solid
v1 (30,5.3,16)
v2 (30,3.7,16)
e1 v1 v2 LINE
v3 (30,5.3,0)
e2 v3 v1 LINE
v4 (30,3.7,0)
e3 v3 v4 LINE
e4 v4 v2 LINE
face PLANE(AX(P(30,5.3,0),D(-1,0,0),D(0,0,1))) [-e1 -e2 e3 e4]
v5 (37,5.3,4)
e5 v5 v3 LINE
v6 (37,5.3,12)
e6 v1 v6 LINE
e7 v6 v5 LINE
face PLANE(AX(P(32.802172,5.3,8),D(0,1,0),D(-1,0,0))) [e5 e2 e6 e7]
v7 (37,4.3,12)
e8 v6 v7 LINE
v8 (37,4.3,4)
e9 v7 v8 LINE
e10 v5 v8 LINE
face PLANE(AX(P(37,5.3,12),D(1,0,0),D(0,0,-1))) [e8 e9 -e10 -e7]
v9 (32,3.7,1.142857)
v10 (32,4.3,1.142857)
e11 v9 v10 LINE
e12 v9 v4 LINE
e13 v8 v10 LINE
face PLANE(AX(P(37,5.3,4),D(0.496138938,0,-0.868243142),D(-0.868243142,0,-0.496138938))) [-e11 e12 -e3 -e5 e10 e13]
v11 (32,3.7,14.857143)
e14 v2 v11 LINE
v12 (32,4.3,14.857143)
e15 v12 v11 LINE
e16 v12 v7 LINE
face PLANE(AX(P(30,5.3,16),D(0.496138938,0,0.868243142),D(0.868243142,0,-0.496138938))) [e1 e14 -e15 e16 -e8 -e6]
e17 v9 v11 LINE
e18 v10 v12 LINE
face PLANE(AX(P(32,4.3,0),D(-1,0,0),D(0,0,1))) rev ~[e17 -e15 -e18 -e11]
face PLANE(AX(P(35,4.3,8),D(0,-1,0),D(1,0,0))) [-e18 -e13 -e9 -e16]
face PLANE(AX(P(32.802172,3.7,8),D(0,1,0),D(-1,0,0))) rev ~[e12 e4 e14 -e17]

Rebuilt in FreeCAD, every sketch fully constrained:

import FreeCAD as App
import Part
import Sketcher

V = App.Vector
Q = App.Units.Quantity

doc = App.newDocument("Part")
params = doc.addObject("Spreadsheet::Sheet", "Params")
for row, (alias, value) in enumerate([
    ("sketch1_width", "6 mm"),
    ("sketch1_height", "16 mm"),
    ("pad1_length", "1.6 mm"),
    ("sketch2_height", "8 mm"),
    ("sketch2_height2", "16 mm"),
    ("pad2_length", "1.6 mm"),
], start=1):
    params.set(f"A{row}", alias)
    params.set(f"B{row}", "=" + value)
    params.setAlias(f"B{row}", alias)

body = doc.addObject("PartDesign::Body", "Body")

# Sketch on XZ plane
sketch1 = body.newObject("Sketcher::SketchObject", "Sketch")
sketch1.AttachmentSupport = (doc.getObject("XZ_Plane"), [""])
sketch1.MapMode = "FlatFace"
sketch1.AttachmentOffset = App.Placement(V(0, 0, -4.3), App.Rotation())
sketch1.addGeometry([
    Part.LineSegment(V(32, 20, 0), V(32, 4, 0)),
    Part.LineSegment(V(32, 4, 0), V(38, 4, 0)),
    Part.LineSegment(V(38, 4, 0), V(38, 20, 0)),
    Part.LineSegment(V(38, 20, 0), V(32, 20, 0)),
], False)
sketch1.addConstraint([
    Sketcher.Constraint("Coincident", 0, 2, 1, 1),
    Sketcher.Constraint("Coincident", 1, 2, 2, 1),
    Sketcher.Constraint("Coincident", 2, 2, 3, 1),
    Sketcher.Constraint("Coincident", 3, 2, 0, 1),
    Sketcher.Constraint("Vertical", 0),
    Sketcher.Constraint("Horizontal", 1),
    Sketcher.Constraint("Vertical", 2),
    Sketcher.Constraint("Horizontal", 3),
    Sketcher.Constraint("DistanceX", 1, 1, 1, 2, Q("6 mm")),
    Sketcher.Constraint("DistanceY", 0, 2, 0, 1, Q("16 mm")),
    Sketcher.Constraint("DistanceX", -1, 1, 0, 2, Q("32 mm")),
    Sketcher.Constraint("DistanceY", -1, 1, 0, 2, Q("4 mm")),
])
sketch1.setExpression("Constraints[8]", "Params.sketch1_width")
sketch1.setExpression("Constraints[9]", "Params.sketch1_height")
pad1 = body.newObject("PartDesign::Pad", "Pad")
pad1.Profile = sketch1
pad1.setExpression("Length", "Params.pad1_length")
body2 = doc.addObject("PartDesign::Body", "Body001")

# Sketch on XZ plane
sketch2 = body2.newObject("Sketcher::SketchObject", "Sketch001")
sketch2.AttachmentSupport = (doc.getObject("XZ_Plane001"), [""])
sketch2.MapMode = "FlatFace"
sketch2.AttachmentOffset = App.Placement(V(0, 0, -5.3), App.Rotation())
sketch2.addGeometry([
    Part.LineSegment(V(37, 8, 0), V(37, 16, 0)),
    Part.LineSegment(V(37, 16, 0), V(30, 20, 0)),
    Part.LineSegment(V(30, 20, 0), V(30, 4, 0)),
    Part.LineSegment(V(30, 4, 0), V(37, 8, 0)),
], False)
sketch2.addConstraint([
    Sketcher.Constraint("Coincident", 0, 2, 1, 1),
    Sketcher.Constraint("Coincident", 1, 2, 2, 1),
    Sketcher.Constraint("Coincident", 2, 2, 3, 1),
    Sketcher.Constraint("Coincident", 3, 2, 0, 1),
    Sketcher.Constraint("Vertical", 0),
    Sketcher.Constraint("Vertical", 2),
    Sketcher.Constraint("Equal", 1, 3),
    Sketcher.Constraint("DistanceY", 0, 1, 0, 2, Q("8 mm")),
    Sketcher.Constraint("DistanceY", 2, 2, 2, 1, Q("16 mm")),
    Sketcher.Constraint("DistanceX", -1, 1, 0, 2, Q("37 mm")),
    Sketcher.Constraint("DistanceY", -1, 1, 0, 2, Q("16 mm")),
    Sketcher.Constraint("DistanceX", -1, 1, 1, 2, Q("30 mm")),
])
sketch2.setExpression("Constraints[7]", "Params.sketch2_height")
sketch2.setExpression("Constraints[8]", "Params.sketch2_height2")
pad2 = body2.newObject("PartDesign::Pad", "Pad001")
pad2.Profile = sketch2
pad2.setExpression("Length", "Params.pad2_length")
doc.recompute()

boolean = body2.newObject("PartDesign::Boolean", "Boolean")
boolean.Type = "Cut"
boolean.addObjects([body])
body3 = doc.addObject("PartDesign::Body", "Body002")
doc.recompute()

body2.Placement = App.Placement(V(0, 0, -4), App.Rotation(V(0, 0, 1), 0))
boolean2 = body3.newObject("PartDesign::Boolean", "Boolean001")
boolean2.Type = "Fuse"
boolean2.addObjects([body2])

doc.recompute()
